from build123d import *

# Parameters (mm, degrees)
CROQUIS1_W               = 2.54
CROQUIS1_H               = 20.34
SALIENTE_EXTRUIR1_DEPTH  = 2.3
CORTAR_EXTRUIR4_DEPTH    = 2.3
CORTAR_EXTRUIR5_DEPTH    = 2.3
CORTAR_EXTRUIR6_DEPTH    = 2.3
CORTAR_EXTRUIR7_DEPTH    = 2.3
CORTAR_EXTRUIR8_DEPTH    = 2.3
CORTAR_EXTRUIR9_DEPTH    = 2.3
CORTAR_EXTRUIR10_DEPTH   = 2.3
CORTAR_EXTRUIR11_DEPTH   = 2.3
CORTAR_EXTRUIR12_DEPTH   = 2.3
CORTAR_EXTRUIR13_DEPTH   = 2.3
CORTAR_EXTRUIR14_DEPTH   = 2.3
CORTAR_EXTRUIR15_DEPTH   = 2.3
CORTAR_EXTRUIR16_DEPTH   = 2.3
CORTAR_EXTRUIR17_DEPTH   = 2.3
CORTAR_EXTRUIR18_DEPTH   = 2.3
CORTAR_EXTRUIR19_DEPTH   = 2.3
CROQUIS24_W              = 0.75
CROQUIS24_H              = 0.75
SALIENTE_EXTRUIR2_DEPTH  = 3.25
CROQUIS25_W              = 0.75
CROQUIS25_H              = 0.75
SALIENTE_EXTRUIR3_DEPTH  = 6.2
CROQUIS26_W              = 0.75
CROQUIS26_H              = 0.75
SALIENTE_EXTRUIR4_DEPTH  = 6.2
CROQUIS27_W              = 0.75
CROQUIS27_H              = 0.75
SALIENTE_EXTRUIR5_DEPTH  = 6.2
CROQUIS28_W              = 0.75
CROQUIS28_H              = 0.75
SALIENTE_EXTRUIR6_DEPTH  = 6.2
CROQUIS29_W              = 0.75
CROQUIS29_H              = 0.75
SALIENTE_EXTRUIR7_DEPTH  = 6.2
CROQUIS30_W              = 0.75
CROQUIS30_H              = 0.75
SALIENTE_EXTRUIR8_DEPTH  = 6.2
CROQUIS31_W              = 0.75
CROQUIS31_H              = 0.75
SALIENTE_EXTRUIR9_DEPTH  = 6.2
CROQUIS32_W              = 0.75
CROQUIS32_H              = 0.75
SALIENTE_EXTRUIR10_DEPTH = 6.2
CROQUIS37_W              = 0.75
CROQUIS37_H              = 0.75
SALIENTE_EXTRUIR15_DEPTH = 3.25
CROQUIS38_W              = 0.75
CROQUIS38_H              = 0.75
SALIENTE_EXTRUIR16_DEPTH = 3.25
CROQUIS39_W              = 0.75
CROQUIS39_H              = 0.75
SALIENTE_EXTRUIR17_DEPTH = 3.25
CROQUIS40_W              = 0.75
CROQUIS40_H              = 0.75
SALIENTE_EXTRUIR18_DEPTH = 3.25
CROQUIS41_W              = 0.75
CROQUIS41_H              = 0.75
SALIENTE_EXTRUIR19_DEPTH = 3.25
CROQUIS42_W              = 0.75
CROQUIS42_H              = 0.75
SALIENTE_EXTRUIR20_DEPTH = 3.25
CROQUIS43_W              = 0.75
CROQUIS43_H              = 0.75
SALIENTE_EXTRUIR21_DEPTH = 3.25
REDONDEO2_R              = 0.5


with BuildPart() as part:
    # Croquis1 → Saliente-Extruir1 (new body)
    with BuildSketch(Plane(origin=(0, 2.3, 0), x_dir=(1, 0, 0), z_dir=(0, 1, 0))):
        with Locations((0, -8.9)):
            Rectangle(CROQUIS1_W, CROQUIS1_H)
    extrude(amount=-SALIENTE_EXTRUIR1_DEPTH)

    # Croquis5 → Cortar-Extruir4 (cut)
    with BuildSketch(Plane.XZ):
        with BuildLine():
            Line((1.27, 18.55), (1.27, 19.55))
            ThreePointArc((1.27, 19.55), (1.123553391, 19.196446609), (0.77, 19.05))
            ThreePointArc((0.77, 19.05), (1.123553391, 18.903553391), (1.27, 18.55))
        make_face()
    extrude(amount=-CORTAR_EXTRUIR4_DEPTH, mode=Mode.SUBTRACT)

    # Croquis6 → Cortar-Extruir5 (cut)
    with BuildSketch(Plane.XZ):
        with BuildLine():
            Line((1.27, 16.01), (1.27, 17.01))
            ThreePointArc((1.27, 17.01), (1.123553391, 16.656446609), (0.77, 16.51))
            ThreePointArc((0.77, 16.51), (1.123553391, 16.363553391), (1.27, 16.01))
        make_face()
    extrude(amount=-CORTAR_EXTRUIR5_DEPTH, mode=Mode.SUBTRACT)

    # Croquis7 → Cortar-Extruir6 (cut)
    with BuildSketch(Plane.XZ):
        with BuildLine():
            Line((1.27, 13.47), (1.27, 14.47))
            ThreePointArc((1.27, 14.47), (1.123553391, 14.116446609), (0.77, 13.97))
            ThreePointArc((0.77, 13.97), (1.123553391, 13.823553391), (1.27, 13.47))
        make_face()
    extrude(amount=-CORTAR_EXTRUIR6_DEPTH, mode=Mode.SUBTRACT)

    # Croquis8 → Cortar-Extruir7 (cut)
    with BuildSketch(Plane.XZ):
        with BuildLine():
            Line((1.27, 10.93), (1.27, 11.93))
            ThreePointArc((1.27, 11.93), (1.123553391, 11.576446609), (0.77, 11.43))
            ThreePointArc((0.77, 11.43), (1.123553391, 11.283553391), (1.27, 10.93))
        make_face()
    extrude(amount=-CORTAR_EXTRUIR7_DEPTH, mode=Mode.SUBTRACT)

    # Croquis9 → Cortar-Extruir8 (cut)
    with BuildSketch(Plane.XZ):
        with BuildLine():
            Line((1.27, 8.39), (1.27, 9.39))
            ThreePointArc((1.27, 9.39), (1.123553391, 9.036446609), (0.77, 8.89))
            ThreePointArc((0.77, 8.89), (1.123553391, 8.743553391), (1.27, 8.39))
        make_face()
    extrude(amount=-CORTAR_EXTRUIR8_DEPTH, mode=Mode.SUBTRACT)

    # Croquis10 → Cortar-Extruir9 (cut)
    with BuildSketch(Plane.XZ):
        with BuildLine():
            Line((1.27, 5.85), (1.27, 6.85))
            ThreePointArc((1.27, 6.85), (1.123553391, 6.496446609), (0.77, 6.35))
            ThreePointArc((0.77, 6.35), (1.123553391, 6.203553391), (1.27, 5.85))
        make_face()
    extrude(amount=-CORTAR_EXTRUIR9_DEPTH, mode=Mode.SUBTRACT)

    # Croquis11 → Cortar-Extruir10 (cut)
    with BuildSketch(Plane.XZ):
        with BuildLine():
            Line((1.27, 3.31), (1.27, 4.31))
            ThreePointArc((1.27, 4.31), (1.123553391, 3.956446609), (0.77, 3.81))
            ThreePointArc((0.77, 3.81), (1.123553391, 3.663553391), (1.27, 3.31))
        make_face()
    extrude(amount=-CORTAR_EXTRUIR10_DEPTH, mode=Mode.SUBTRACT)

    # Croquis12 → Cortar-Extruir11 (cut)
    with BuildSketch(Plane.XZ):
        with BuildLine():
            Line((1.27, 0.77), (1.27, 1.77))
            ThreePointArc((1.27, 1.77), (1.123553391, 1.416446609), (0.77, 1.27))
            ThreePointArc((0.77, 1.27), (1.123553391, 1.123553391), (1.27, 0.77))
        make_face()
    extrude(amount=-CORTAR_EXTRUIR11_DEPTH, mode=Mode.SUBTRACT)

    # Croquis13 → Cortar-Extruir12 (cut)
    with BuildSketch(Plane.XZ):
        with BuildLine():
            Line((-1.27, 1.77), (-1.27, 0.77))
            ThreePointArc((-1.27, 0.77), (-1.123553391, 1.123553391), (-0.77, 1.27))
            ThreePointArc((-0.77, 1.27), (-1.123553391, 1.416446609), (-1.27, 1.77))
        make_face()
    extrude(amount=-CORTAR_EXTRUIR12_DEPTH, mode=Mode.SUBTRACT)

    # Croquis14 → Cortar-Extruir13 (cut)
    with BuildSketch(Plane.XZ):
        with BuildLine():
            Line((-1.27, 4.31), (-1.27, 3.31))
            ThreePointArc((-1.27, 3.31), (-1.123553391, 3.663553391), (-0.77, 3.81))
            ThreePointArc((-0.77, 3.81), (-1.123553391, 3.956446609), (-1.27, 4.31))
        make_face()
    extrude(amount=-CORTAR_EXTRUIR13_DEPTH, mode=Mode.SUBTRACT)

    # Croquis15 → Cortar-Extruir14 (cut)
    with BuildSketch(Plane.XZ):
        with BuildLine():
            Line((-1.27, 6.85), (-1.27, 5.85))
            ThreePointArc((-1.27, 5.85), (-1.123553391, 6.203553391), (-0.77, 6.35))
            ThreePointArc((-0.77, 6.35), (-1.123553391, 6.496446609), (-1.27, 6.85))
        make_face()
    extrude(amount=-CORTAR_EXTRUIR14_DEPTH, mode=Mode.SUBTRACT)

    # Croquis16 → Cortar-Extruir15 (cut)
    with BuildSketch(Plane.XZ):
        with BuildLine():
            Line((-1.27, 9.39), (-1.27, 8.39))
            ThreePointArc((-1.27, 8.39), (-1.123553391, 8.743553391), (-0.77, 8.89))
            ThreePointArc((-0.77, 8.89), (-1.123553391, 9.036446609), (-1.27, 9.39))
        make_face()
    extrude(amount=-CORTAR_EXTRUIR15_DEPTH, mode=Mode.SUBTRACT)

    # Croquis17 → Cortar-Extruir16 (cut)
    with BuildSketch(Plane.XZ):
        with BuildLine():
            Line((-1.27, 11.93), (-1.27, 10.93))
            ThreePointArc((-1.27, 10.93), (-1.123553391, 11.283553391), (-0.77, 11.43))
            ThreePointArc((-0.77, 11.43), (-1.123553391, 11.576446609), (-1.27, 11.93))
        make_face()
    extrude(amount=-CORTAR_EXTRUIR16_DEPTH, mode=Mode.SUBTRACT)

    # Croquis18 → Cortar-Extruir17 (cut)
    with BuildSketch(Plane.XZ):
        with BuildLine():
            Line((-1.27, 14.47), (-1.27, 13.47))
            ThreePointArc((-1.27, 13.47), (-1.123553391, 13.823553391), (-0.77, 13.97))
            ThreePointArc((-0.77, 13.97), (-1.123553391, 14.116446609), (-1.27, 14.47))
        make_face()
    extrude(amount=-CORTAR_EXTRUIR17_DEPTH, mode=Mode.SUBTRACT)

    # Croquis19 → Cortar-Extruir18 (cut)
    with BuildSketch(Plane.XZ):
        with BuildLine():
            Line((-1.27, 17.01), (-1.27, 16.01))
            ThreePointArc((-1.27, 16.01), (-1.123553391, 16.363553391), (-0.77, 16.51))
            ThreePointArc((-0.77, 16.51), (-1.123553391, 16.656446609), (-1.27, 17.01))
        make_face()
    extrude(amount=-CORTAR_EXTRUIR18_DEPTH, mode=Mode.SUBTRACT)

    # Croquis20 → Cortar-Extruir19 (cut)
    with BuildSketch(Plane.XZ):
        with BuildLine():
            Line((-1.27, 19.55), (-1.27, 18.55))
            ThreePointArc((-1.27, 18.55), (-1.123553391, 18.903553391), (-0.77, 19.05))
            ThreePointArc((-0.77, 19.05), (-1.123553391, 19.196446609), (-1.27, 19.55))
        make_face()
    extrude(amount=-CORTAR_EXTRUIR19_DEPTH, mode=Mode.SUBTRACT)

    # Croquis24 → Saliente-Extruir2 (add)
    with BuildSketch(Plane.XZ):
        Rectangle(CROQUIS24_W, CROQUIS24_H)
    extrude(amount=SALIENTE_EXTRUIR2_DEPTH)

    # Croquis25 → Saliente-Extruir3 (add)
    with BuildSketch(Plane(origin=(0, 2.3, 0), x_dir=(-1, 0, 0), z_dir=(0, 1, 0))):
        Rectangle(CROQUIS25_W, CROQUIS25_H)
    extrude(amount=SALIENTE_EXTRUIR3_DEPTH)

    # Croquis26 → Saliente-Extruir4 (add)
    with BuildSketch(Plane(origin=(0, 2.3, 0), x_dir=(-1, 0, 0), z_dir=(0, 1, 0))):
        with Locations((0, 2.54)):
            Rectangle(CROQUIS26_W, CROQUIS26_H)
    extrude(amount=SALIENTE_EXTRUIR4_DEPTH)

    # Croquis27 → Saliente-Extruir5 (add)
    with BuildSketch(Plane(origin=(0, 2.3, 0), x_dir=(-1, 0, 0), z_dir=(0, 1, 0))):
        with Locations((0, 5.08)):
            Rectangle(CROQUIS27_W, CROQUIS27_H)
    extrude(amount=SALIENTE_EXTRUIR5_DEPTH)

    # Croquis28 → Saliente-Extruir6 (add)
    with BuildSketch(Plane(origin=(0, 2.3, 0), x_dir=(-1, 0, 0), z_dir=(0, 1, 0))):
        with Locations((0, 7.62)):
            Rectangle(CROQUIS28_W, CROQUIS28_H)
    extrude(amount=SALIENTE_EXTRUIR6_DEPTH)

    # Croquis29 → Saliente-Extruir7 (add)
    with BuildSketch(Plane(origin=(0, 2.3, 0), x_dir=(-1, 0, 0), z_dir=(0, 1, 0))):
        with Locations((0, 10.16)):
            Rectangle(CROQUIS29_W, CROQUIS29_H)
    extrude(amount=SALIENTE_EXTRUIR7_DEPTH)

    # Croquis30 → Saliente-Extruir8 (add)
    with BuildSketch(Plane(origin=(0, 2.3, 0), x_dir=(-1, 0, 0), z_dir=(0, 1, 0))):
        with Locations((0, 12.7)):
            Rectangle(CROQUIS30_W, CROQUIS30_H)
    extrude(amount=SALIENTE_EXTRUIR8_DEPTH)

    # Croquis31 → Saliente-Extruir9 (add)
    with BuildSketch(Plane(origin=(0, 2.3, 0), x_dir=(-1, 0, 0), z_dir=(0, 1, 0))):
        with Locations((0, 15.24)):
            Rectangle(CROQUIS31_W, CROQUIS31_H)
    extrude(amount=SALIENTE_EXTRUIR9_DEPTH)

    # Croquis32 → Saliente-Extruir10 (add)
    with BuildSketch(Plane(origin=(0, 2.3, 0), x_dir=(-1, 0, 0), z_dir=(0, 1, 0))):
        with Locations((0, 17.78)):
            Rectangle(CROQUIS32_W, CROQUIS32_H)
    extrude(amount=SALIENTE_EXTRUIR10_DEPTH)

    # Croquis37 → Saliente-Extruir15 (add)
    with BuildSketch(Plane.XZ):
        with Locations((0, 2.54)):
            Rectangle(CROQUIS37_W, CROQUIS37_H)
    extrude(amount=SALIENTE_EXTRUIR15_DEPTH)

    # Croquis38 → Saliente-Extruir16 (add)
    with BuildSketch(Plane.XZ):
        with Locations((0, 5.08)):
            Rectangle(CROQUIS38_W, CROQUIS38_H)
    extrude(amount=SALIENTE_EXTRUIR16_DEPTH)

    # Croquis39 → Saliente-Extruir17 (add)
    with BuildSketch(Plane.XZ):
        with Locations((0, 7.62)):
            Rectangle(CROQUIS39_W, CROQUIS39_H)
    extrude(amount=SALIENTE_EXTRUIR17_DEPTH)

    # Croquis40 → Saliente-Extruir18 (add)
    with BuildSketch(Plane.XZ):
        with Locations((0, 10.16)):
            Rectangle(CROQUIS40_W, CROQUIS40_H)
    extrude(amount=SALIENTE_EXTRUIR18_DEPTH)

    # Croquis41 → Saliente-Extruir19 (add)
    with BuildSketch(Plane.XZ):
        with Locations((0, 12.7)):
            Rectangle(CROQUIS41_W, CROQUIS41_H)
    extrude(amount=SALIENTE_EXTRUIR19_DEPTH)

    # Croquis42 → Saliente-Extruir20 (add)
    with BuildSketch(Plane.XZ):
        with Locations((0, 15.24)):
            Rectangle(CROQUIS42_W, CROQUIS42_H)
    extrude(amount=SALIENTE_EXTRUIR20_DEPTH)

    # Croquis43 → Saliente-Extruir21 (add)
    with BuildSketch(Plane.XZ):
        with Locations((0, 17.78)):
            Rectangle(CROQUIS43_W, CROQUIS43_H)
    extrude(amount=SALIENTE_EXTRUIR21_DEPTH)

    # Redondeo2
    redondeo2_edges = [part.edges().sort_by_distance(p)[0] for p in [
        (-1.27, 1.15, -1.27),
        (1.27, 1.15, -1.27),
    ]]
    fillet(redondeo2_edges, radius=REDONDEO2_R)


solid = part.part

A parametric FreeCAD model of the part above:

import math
import FreeCAD as App
import Part
import Sketcher
from FreeCAD import Vector
Q = App.Units.Quantity


def edges_at(feature, points):
    """Names of the edges that pass closest to the given points."""
    edges = feature.Shape.Edges
    near = lambda p: min(range(len(edges)), key=lambda i: edges[i].distToShape(Part.Vertex(*p))[0])
    return sorted({f"Edge{near(p) + 1}" for p in points})


def add_polygon(sketch, points):
    """Adds a closed chain of lines whose ends are joined by coincident constraints."""
    first, n = sketch.GeometryCount, len(points)
    for a, b in zip(points, points[1:] + points[:1]):
        sketch.addGeometry(Part.LineSegment(App.Vector(*a, 0), App.Vector(*b, 0)), False)
    for i in range(n):
        sketch.addConstraint(Sketcher.Constraint("Coincident", first + i, 2, first + (i + 1) % n, 1))

doc = App.newDocument("Part")
body = doc.addObject("PartDesign::Body", "Body")

# Sketch on XZ plane
sketch1 = body.newObject("Sketcher::SketchObject", "Sketch")
sketch1.AttachmentSupport = (doc.getObject("XZ_Plane"), [""])
sketch1.MapMode = "FlatFace"
sketch1.AttachmentOffset = App.Placement(Vector(0, 0, -2.3), App.Rotation())
add_polygon(sketch1, [(-1.27, -1.27), (-1.27, 19.07), (1.27, 19.07), (1.27, -1.27)])  # lines 0-3
sketch1.addConstraint([
    Sketcher.Constraint("Vertical", 0),
    Sketcher.Constraint("Horizontal", 1),
    Sketcher.Constraint("Vertical", 2),
    Sketcher.Constraint("Horizontal", 3),
    Sketcher.Constraint("DistanceX", 1, 1, 1, 2, Q("2.54 mm")),
    Sketcher.Constraint("DistanceY", 0, 1, 0, 2, Q("20.34 mm")),
    Sketcher.Constraint("DistanceX", 0, 2, -1, 1, Q("1.27 mm")),
    Sketcher.Constraint("DistanceY", -1, 1, 0, 2, Q("19.07 mm")),
])
pad1 = body.newObject("PartDesign::Pad", "Pad")
pad1.Profile = sketch1
pad1.Length = 2.3

# Sketch on XZ plane
sketch2 = body.newObject("Sketcher::SketchObject", "Sketch001")
sketch2.AttachmentSupport = (doc.getObject("XZ_Plane"), [""])
sketch2.MapMode = "FlatFace"
sketch2.addGeometry([
    Part.LineSegment(Vector(1.27, 18.55, 0), Vector(1.27, 19.55, 0)),
    Part.ArcOfCircle(Part.Circle(Vector(0.77, 19.55, 0), Vector(0, 0, 1), 0.5), math.radians(-90), math.radians(0)),
    Part.ArcOfCircle(Part.Circle(Vector(0.77, 18.55, 0), Vector(0, 0, 1), 0.5), math.radians(0), math.radians(90)),
], False)
sketch2.addConstraint([
    Sketcher.Constraint("Tangent", 0, 2, 1, 2),
    Sketcher.Constraint("Tangent", 1, 1, 2, 2),
    Sketcher.Constraint("Tangent", 2, 1, 0, 1),
    Sketcher.Constraint("Vertical", 0),
    Sketcher.Constraint("Equal", 1, 2),
    Sketcher.Constraint("Radius", 1, Q("0.5 mm")),
    Sketcher.Constraint("DistanceX", -1, 1, 1, 3, Q("0.77 mm")),
    Sketcher.Constraint("DistanceY", -1, 1, 1, 3, Q("19.55 mm")),
])
pocket1 = body.newObject("PartDesign::Pocket", "Pocket")
pocket1.Profile = sketch2
pocket1.Length = 2.3

# Sketch on XZ plane
sketch3 = body.newObject("Sketcher::SketchObject", "Sketch002")
sketch3.AttachmentSupport = (doc.getObject("XZ_Plane"), [""])
sketch3.MapMode = "FlatFace"
sketch3.addGeometry([
    Part.LineSegment(Vector(1.27, 16.01, 0), Vector(1.27, 17.01, 0)),
    Part.ArcOfCircle(Part.Circle(Vector(0.77, 17.01, 0), Vector(0, 0, 1), 0.5), math.radians(-90), math.radians(0)),
    Part.ArcOfCircle(Part.Circle(Vector(0.77, 16.01, 0), Vector(0, 0, 1), 0.5), math.radians(0), math.radians(90)),
], False)
sketch3.addConstraint([
    Sketcher.Constraint("Tangent", 0, 2, 1, 2),
    Sketcher.Constraint("Tangent", 1, 1, 2, 2),
    Sketcher.Constraint("Tangent", 2, 1, 0, 1),
    Sketcher.Constraint("Vertical", 0),
    Sketcher.Constraint("Equal", 1, 2),
    Sketcher.Constraint("Radius", 1, Q("0.5 mm")),
    Sketcher.Constraint("DistanceX", -1, 1, 1, 3, Q("0.77 mm")),
    Sketcher.Constraint("DistanceY", -1, 1, 1, 3, Q("17.01 mm")),
])
pocket2 = body.newObject("PartDesign::Pocket", "Pocket001")
pocket2.Profile = sketch3
pocket2.Length = 2.3

# Sketch on XZ plane
sketch4 = body.newObject("Sketcher::SketchObject", "Sketch003")
sketch4.AttachmentSupport = (doc.getObject("XZ_Plane"), [""])
sketch4.MapMode = "FlatFace"
sketch4.addGeometry([
    Part.LineSegment(Vector(1.27, 13.47, 0), Vector(1.27, 14.47, 0)),
    Part.ArcOfCircle(Part.Circle(Vector(0.77, 14.47, 0), Vector(0, 0, 1), 0.5), math.radians(-90), math.radians(0)),
    Part.ArcOfCircle(Part.Circle(Vector(0.77, 13.47, 0), Vector(0, 0, 1), 0.5), math.radians(0), math.radians(90)),
], False)
sketch4.addConstraint([
    Sketcher.Constraint("Tangent", 0, 2, 1, 2),
    Sketcher.Constraint("Tangent", 1, 1, 2, 2),
    Sketcher.Constraint("Tangent", 2, 1, 0, 1),
    Sketcher.Constraint("Vertical", 0),
    Sketcher.Constraint("Equal", 1, 2),
    Sketcher.Constraint("Radius", 1, Q("0.5 mm")),
    Sketcher.Constraint("DistanceX", -1, 1, 1, 3, Q("0.77 mm")),
    Sketcher.Constraint("DistanceY", -1, 1, 1, 3, Q("14.47 mm")),
])
pocket3 = body.newObject("PartDesign::Pocket", "Pocket002")
pocket3.Profile = sketch4
pocket3.Length = 2.3

# Sketch on XZ plane
sketch5 = body.newObject("Sketcher::SketchObject", "Sketch004")
sketch5.AttachmentSupport = (doc.getObject("XZ_Plane"), [""])
sketch5.MapMode = "FlatFace"
sketch5.addGeometry([
    Part.LineSegment(Vector(1.27, 10.93, 0), Vector(1.27, 11.93, 0)),
    Part.ArcOfCircle(Part.Circle(Vector(0.77, 11.93, 0), Vector(0, 0, 1), 0.5), math.radians(-90), math.radians(0)),
    Part.ArcOfCircle(Part.Circle(Vector(0.77, 10.93, 0), Vector(0, 0, 1), 0.5), math.radians(0), math.radians(90)),
], False)
sketch5.addConstraint([
    Sketcher.Constraint("Tangent", 0, 2, 1, 2),
    Sketcher.Constraint("Tangent", 1, 1, 2, 2),
    Sketcher.Constraint("Tangent", 2, 1, 0, 1),
    Sketcher.Constraint("Vertical", 0),
    Sketcher.Constraint("Equal", 1, 2),
    Sketcher.Constraint("Radius", 1, Q("0.5 mm")),
    Sketcher.Constraint("DistanceX", -1, 1, 1, 3, Q("0.77 mm")),
    Sketcher.Constraint("DistanceY", -1, 1, 1, 3, Q("11.93 mm")),
])
pocket4 = body.newObject("PartDesign::Pocket", "Pocket003")
pocket4.Profile = sketch5
pocket4.Length = 2.3

# Sketch on XZ plane
sketch6 = body.newObject("Sketcher::SketchObject", "Sketch005")
sketch6.AttachmentSupport = (doc.getObject("XZ_Plane"), [""])
sketch6.MapMode = "FlatFace"
sketch6.addGeometry([
    Part.LineSegment(Vector(1.27, 8.39, 0), Vector(1.27, 9.39, 0)),
    Part.ArcOfCircle(Part.Circle(Vector(0.77, 9.39, 0), Vector(0, 0, 1), 0.5), math.radians(-90), math.radians(0)),
    Part.ArcOfCircle(Part.Circle(Vector(0.77, 8.39, 0), Vector(0, 0, 1), 0.5), math.radians(0), math.radians(90)),
], False)
sketch6.addConstraint([
    Sketcher.Constraint("Tangent", 0, 2, 1, 2),
    Sketcher.Constraint("Tangent", 1, 1, 2, 2),
    Sketcher.Constraint("Tangent", 2, 1, 0, 1),
    Sketcher.Constraint("Vertical", 0),
    Sketcher.Constraint("Equal", 1, 2),
    Sketcher.Constraint("Radius", 1, Q("0.5 mm")),
    Sketcher.Constraint("DistanceX", -1, 1, 1, 3, Q("0.77 mm")),
    Sketcher.Constraint("DistanceY", -1, 1, 1, 3, Q("9.39 mm")),
])
pocket5 = body.newObject("PartDesign::Pocket", "Pocket004")
pocket5.Profile = sketch6
pocket5.Length = 2.3

# Sketch on XZ plane
sketch7 = body.newObject("Sketcher::SketchObject", "Sketch006")
sketch7.AttachmentSupport = (doc.getObject("XZ_Plane"), [""])
sketch7.MapMode = "FlatFace"
sketch7.addGeometry([
    Part.LineSegment(Vector(1.27, 5.85, 0), Vector(1.27, 6.85, 0)),
    Part.ArcOfCircle(Part.Circle(Vector(0.77, 6.85, 0), Vector(0, 0, 1), 0.5), math.radians(-90), math.radians(0)),
    Part.ArcOfCircle(Part.Circle(Vector(0.77, 5.85, 0), Vector(0, 0, 1), 0.5), math.radians(0), math.radians(90)),
], False)
sketch7.addConstraint([
    Sketcher.Constraint("Tangent", 0, 2, 1, 2),
    Sketcher.Constraint("Tangent", 1, 1, 2, 2),
    Sketcher.Constraint("Tangent", 2, 1, 0, 1),
    Sketcher.Constraint("Vertical", 0),
    Sketcher.Constraint("Equal", 1, 2),
    Sketcher.Constraint("Radius", 1, Q("0.5 mm")),
    Sketcher.Constraint("DistanceX", -1, 1, 1, 3, Q("0.77 mm")),
    Sketcher.Constraint("DistanceY", -1, 1, 1, 3, Q("6.85 mm")),
])
pocket6 = body.newObject("PartDesign::Pocket", "Pocket005")
pocket6.Profile = sketch7
pocket6.Length = 2.3

# Sketch on XZ plane
sketch8 = body.newObject("Sketcher::SketchObject", "Sketch007")
sketch8.AttachmentSupport = (doc.getObject("XZ_Plane"), [""])
sketch8.MapMode = "FlatFace"
sketch8.addGeometry([
    Part.LineSegment(Vector(1.27, 3.31, 0), Vector(1.27, 4.31, 0)),
    Part.ArcOfCircle(Part.Circle(Vector(0.77, 4.31, 0), Vector(0, 0, 1), 0.5), math.radians(-90), math.radians(0)),
    Part.ArcOfCircle(Part.Circle(Vector(0.77, 3.31, 0), Vector(0, 0, 1), 0.5), math.radians(0), math.radians(90)),
], False)
sketch8.addConstraint([
    Sketcher.Constraint("Tangent", 0, 2, 1, 2),
    Sketcher.Constraint("Tangent", 1, 1, 2, 2),
    Sketcher.Constraint("Tangent", 2, 1, 0, 1),
    Sketcher.Constraint("Vertical", 0),
    Sketcher.Constraint("Equal", 1, 2),
    Sketcher.Constraint("Radius", 1, Q("0.5 mm")),
    Sketcher.Constraint("DistanceX", -1, 1, 1, 3, Q("0.77 mm")),
    Sketcher.Constraint("DistanceY", -1, 1, 1, 3, Q("4.31 mm")),
])
pocket7 = body.newObject("PartDesign::Pocket", "Pocket006")
pocket7.Profile = sketch8
pocket7.Length = 2.3

# Sketch on XZ plane
sketch9 = body.newObject("Sketcher::SketchObject", "Sketch008")
sketch9.AttachmentSupport = (doc.getObject("XZ_Plane"), [""])
sketch9.MapMode = "FlatFace"
sketch9.addGeometry([
    Part.LineSegment(Vector(1.27, 0.77, 0), Vector(1.27, 1.77, 0)),
    Part.ArcOfCircle(Part.Circle(Vector(0.77, 1.77, 0), Vector(0, 0, 1), 0.5), math.radians(-90), math.radians(0)),
    Part.ArcOfCircle(Part.Circle(Vector(0.77, 0.77, 0), Vector(0, 0, 1), 0.5), math.radians(0), math.radians(90)),
], False)
sketch9.addConstraint([
    Sketcher.Constraint("Tangent", 0, 2, 1, 2),
    Sketcher.Constraint("Tangent", 1, 1, 2, 2),
    Sketcher.Constraint("Tangent", 2, 1, 0, 1),
    Sketcher.Constraint("Vertical", 0),
    Sketcher.Constraint("Equal", 1, 2),
    Sketcher.Constraint("Radius", 1, Q("0.5 mm")),
    Sketcher.Constraint("DistanceX", -1, 1, 1, 3, Q("0.77 mm")),
    Sketcher.Constraint("DistanceY", -1, 1, 1, 3, Q("1.77 mm")),
])
pocket8 = body.newObject("PartDesign::Pocket", "Pocket007")
pocket8.Profile = sketch9
pocket8.Length = 2.3

# Sketch on XZ plane
sketch10 = body.newObject("Sketcher::SketchObject", "Sketch009")
sketch10.AttachmentSupport = (doc.getObject("XZ_Plane"), [""])
sketch10.MapMode = "FlatFace"
sketch10.addGeometry([
    Part.LineSegment(Vector(-1.27, 1.77, 0), Vector(-1.27, 0.77, 0)),
    Part.ArcOfCircle(Part.Circle(Vector(-0.77, 0.77, 0), Vector(0, 0, 1), 0.5), math.radians(90), math.radians(180)),
    Part.ArcOfCircle(Part.Circle(Vector(-0.77, 1.77, 0), Vector(0, 0, 1), 0.5), math.radians(180), math.radians(270)),
], False)
sketch10.addConstraint([
    Sketcher.Constraint("Tangent", 0, 2, 1, 2),
    Sketcher.Constraint("Tangent", 1, 1, 2, 2),
    Sketcher.Constraint("Tangent", 2, 1, 0, 1),
    Sketcher.Constraint("Vertical", 0),
    Sketcher.Constraint("Equal", 1, 2),
    Sketcher.Constraint("Radius", 1, Q("0.5 mm")),
    Sketcher.Constraint("DistanceX", 1, 3, -1, 1, Q("0.77 mm")),
    Sketcher.Constraint("DistanceY", -1, 1, 1, 3, Q("0.77 mm")),
])
pocket9 = body.newObject("PartDesign::Pocket", "Pocket008")
pocket9.Profile = sketch10
pocket9.Length = 2.3

# Sketch on XZ plane
sketch11 = body.newObject("Sketcher::SketchObject", "Sketch010")
sketch11.AttachmentSupport = (doc.getObject("XZ_Plane"), [""])
sketch11.MapMode = "FlatFace"
sketch11.addGeometry([
    Part.LineSegment(Vector(-1.27, 4.31, 0), Vector(-1.27, 3.31, 0)),
    Part.ArcOfCircle(Part.Circle(Vector(-0.77, 3.31, 0), Vector(0, 0, 1), 0.5), math.radians(90), math.radians(180)),
    Part.ArcOfCircle(Part.Circle(Vector(-0.77, 4.31, 0), Vector(0, 0, 1), 0.5), math.radians(180), math.radians(270)),
], False)
sketch11.addConstraint([
    Sketcher.Constraint("Tangent", 0, 2, 1, 2),
    Sketcher.Constraint("Tangent", 1, 1, 2, 2),
    Sketcher.Constraint("Tangent", 2, 1, 0, 1),
    Sketcher.Constraint("Vertical", 0),
    Sketcher.Constraint("Equal", 1, 2),
    Sketcher.Constraint("Radius", 1, Q("0.5 mm")),
    Sketcher.Constraint("DistanceX", 1, 3, -1, 1, Q("0.77 mm")),
    Sketcher.Constraint("DistanceY", -1, 1, 1, 3, Q("3.31 mm")),
])
pocket10 = body.newObject("PartDesign::Pocket", "Pocket009")
pocket10.Profile = sketch11
pocket10.Length = 2.3

# Sketch on XZ plane
sketch12 = body.newObject("Sketcher::SketchObject", "Sketch011")
sketch12.AttachmentSupport = (doc.getObject("XZ_Plane"), [""])
sketch12.MapMode = "FlatFace"
sketch12.addGeometry([
    Part.LineSegment(Vector(-1.27, 6.85, 0), Vector(-1.27, 5.85, 0)),
    Part.ArcOfCircle(Part.Circle(Vector(-0.77, 5.85, 0), Vector(0, 0, 1), 0.5), math.radians(90), math.radians(180)),
    Part.ArcOfCircle(Part.Circle(Vector(-0.77, 6.85, 0), Vector(0, 0, 1), 0.5), math.radians(180), math.radians(270)),
], False)
sketch12.addConstraint([
    Sketcher.Constraint("Tangent", 0, 2, 1, 2),
    Sketcher.Constraint("Tangent", 1, 1, 2, 2),
    Sketcher.Constraint("Tangent", 2, 1, 0, 1),
    Sketcher.Constraint("Vertical", 0),
    Sketcher.Constraint("Equal", 1, 2),
    Sketcher.Constraint("Radius", 1, Q("0.5 mm")),
    Sketcher.Constraint("DistanceX", 1, 3, -1, 1, Q("0.77 mm")),
    Sketcher.Constraint("DistanceY", -1, 1, 1, 3, Q("5.85 mm")),
])
pocket11 = body.newObject("PartDesign::Pocket", "Pocket010")
pocket11.Profile = sketch12
pocket11.Length = 2.3

# Sketch on XZ plane
sketch13 = body.newObject("Sketcher::SketchObject", "Sketch012")
sketch13.AttachmentSupport = (doc.getObject("XZ_Plane"), [""])
sketch13.MapMode = "FlatFace"
sketch13.addGeometry([
    Part.LineSegment(Vector(-1.27, 9.39, 0), Vector(-1.27, 8.39, 0)),
    Part.ArcOfCircle(Part.Circle(Vector(-0.77, 8.39, 0), Vector(0, 0, 1), 0.5), math.radians(90), math.radians(180)),
    Part.ArcOfCircle(Part.Circle(Vector(-0.77, 9.39, 0), Vector(0, 0, 1), 0.5), math.radians(180), math.radians(270)),
], False)
sketch13.addConstraint([
    Sketcher.Constraint("Tangent", 0, 2, 1, 2),
    Sketcher.Constraint("Tangent", 1, 1, 2, 2),
    Sketcher.Constraint("Tangent", 2, 1, 0, 1),
    Sketcher.Constraint("Vertical", 0),
    Sketcher.Constraint("Equal", 1, 2),
    Sketcher.Constraint("Radius", 1, Q("0.5 mm")),
    Sketcher.Constraint("DistanceX", 1, 3, -1, 1, Q("0.77 mm")),
    Sketcher.Constraint("DistanceY", -1, 1, 1, 3, Q("8.39 mm")),
])
pocket12 = body.newObject("PartDesign::Pocket", "Pocket011")
pocket12.Profile = sketch13
pocket12.Length = 2.3

# Sketch on XZ plane
sketch14 = body.newObject("Sketcher::SketchObject", "Sketch013")
sketch14.AttachmentSupport = (doc.getObject("XZ_Plane"), [""])
sketch14.MapMode = "FlatFace"
sketch14.addGeometry([
    Part.LineSegment(Vector(-1.27, 11.93, 0), Vector(-1.27, 10.93, 0)),
    Part.ArcOfCircle(Part.Circle(Vector(-0.77, 10.93, 0), Vector(0, 0, 1), 0.5), math.radians(90), math.radians(180)),
    Part.ArcOfCircle(Part.Circle(Vector(-0.77, 11.93, 0), Vector(0, 0, 1), 0.5), math.radians(180), math.radians(270)),
], False)
sketch14.addConstraint([
    Sketcher.Constraint("Tangent", 0, 2, 1, 2),
    Sketcher.Constraint("Tangent", 1, 1, 2, 2),
    Sketcher.Constraint("Tangent", 2, 1, 0, 1),
    Sketcher.Constraint("Vertical", 0),
    Sketcher.Constraint("Equal", 1, 2),
    Sketcher.Constraint("Radius", 1, Q("0.5 mm")),
    Sketcher.Constraint("DistanceX", 1, 3, -1, 1, Q("0.77 mm")),
    Sketcher.Constraint("DistanceY", -1, 1, 1, 3, Q("10.93 mm")),
])
pocket13 = body.newObject("PartDesign::Pocket", "Pocket012")
pocket13.Profile = sketch14
pocket13.Length = 2.3

# Sketch on XZ plane
sketch15 = body.newObject("Sketcher::SketchObject", "Sketch014")
sketch15.AttachmentSupport = (doc.getObject("XZ_Plane"), [""])
sketch15.MapMode = "FlatFace"
sketch15.addGeometry([
    Part.LineSegment(Vector(-1.27, 14.47, 0), Vector(-1.27, 13.47, 0)),
    Part.ArcOfCircle(Part.Circle(Vector(-0.77, 13.47, 0), Vector(0, 0, 1), 0.5), math.radians(90), math.radians(180)),
    Part.ArcOfCircle(Part.Circle(Vector(-0.77, 14.47, 0), Vector(0, 0, 1), 0.5), math.radians(180), math.radians(270)),
], False)
sketch15.addConstraint([
    Sketcher.Constraint("Tangent", 0, 2, 1, 2),
    Sketcher.Constraint("Tangent", 1, 1, 2, 2),
    Sketcher.Constraint("Tangent", 2, 1, 0, 1),
    Sketcher.Constraint("Vertical", 0),
    Sketcher.Constraint("Equal", 1, 2),
    Sketcher.Constraint("Radius", 1, Q("0.5 mm")),
    Sketcher.Constraint("DistanceX", 1, 3, -1, 1, Q("0.77 mm")),
    Sketcher.Constraint("DistanceY", -1, 1, 1, 3, Q("13.47 mm")),
])
pocket14 = body.newObject("PartDesign::Pocket", "Pocket013")
pocket14.Profile = sketch15
pocket14.Length = 2.3

# Sketch on XZ plane
sketch16 = body.newObject("Sketcher::SketchObject", "Sketch015")
sketch16.AttachmentSupport = (doc.getObject("XZ_Plane"), [""])
sketch16.MapMode = "FlatFace"
sketch16.addGeometry([
    Part.LineSegment(Vector(-1.27, 17.01, 0), Vector(-1.27, 16.01, 0)),
    Part.ArcOfCircle(Part.Circle(Vector(-0.77, 16.01, 0), Vector(0, 0, 1), 0.5), math.radians(90), math.radians(180)),
    Part.ArcOfCircle(Part.Circle(Vector(-0.77, 17.01, 0), Vector(0, 0, 1), 0.5), math.radians(180), math.radians(270)),
], False)
sketch16.addConstraint([
    Sketcher.Constraint("Tangent", 0, 2, 1, 2),
    Sketcher.Constraint("Tangent", 1, 1, 2, 2),
    Sketcher.Constraint("Tangent", 2, 1, 0, 1),
    Sketcher.Constraint("Vertical", 0),
    Sketcher.Constraint("Equal", 1, 2),
    Sketcher.Constraint("Radius", 1, Q("0.5 mm")),
    Sketcher.Constraint("DistanceX", 1, 3, -1, 1, Q("0.77 mm")),
    Sketcher.Constraint("DistanceY", -1, 1, 1, 3, Q("16.01 mm")),
])
pocket15 = body.newObject("PartDesign::Pocket", "Pocket014")
pocket15.Profile = sketch16
pocket15.Length = 2.3

# Sketch on XZ plane
sketch17 = body.newObject("Sketcher::SketchObject", "Sketch016")
sketch17.AttachmentSupport = (doc.getObject("XZ_Plane"), [""])
sketch17.MapMode = "FlatFace"
sketch17.addGeometry([
    Part.LineSegment(Vector(-1.27, 19.55, 0), Vector(-1.27, 18.55, 0)),
    Part.ArcOfCircle(Part.Circle(Vector(-0.77, 18.55, 0), Vector(0, 0, 1), 0.5), math.radians(90), math.radians(180)),
    Part.ArcOfCircle(Part.Circle(Vector(-0.77, 19.55, 0), Vector(0, 0, 1), 0.5), math.radians(180), math.radians(270)),
], False)
sketch17.addConstraint([
    Sketcher.Constraint("Tangent", 0, 2, 1, 2),
    Sketcher.Constraint("Tangent", 1, 1, 2, 2),
    Sketcher.Constraint("Tangent", 2, 1, 0, 1),
    Sketcher.Constraint("Vertical", 0),
    Sketcher.Constraint("Equal", 1, 2),
    Sketcher.Constraint("Radius", 1, Q("0.5 mm")),
    Sketcher.Constraint("DistanceX", 1, 3, -1, 1, Q("0.77 mm")),
    Sketcher.Constraint("DistanceY", -1, 1, 1, 3, Q("18.55 mm")),
])
pocket16 = body.newObject("PartDesign::Pocket", "Pocket015")
pocket16.Profile = sketch17
pocket16.Length = 2.3

# Sketch on XZ plane
sketch18 = body.newObject("Sketcher::SketchObject", "Sketch017")
sketch18.AttachmentSupport = (doc.getObject("XZ_Plane"), [""])
sketch18.MapMode = "FlatFace"
add_polygon(sketch18, [(-0.375, 0.375), (-0.375, -0.375), (0.375, -0.375), (0.375, 0.375)])  # lines 0-3
sketch18.addConstraint([
    Sketcher.Constraint("Vertical", 0),
    Sketcher.Constraint("Horizontal", 1),
    Sketcher.Constraint("Vertical", 2),
    Sketcher.Constraint("Horizontal", 3),
    Sketcher.Constraint("Symmetric", 0, 2, 2, 2, -1, 1),
    Sketcher.Constraint("Equal", 3, 0),
    Sketcher.Constraint("DistanceX", 1, 1, 1, 2, Q("0.75 mm")),
])
pad2 = body.newObject("PartDesign::Pad", "Pad001")
pad2.Profile = sketch18
pad2.Length = 3.25

# Sketch on XZ plane
sketch19 = body.newObject("Sketcher::SketchObject", "Sketch018")
sketch19.AttachmentSupport = (doc.getObject("XZ_Plane"), [""])
sketch19.MapMode = "FlatFace"
sketch19.AttachmentOffset = App.Placement(Vector(0, 0, -2.3), App.Rotation())
add_polygon(sketch19, [(0.375, 0.375), (0.375, -0.375), (-0.375, -0.375), (-0.375, 0.375)])  # lines 0-3
sketch19.addConstraint([
    Sketcher.Constraint("Vertical", 0),
    Sketcher.Constraint("Horizontal", 1),
    Sketcher.Constraint("Vertical", 2),
    Sketcher.Constraint("Horizontal", 3),
    Sketcher.Constraint("Symmetric", 0, 2, 2, 2, -1, 1),
    Sketcher.Constraint("Equal", 3, 0),
    Sketcher.Constraint("DistanceX", 1, 2, 1, 1, Q("0.75 mm")),
])
pad3 = body.newObject("PartDesign::Pad", "Pad002")
pad3.Profile = sketch19
pad3.Length = 6.2
pad3.Reversed = True

# Sketch on XZ plane
sketch20 = body.newObject("Sketcher::SketchObject", "Sketch019")
sketch20.AttachmentSupport = (doc.getObject("XZ_Plane"), [""])
sketch20.MapMode = "FlatFace"
sketch20.AttachmentOffset = App.Placement(Vector(0, 0, -2.3), App.Rotation())
add_polygon(sketch20, [(0.375, 2.915), (0.375, 2.165), (-0.375, 2.165), (-0.375, 2.915)])  # lines 0-3
sketch20.addConstraint([
    Sketcher.Constraint("Vertical", 0),
    Sketcher.Constraint("Horizontal", 1),
    Sketcher.Constraint("Vertical", 2),
    Sketcher.Constraint("Horizontal", 3),
    Sketcher.Constraint("Equal", 3, 0),
    Sketcher.Constraint("DistanceX", 1, 2, 1, 1, Q("0.75 mm")),
    Sketcher.Constraint("DistanceX", -1, 1, 0, 2, Q("0.375 mm")),
    Sketcher.Constraint("DistanceY", -1, 1, 0, 2, Q("2.165 mm")),
])
pad4 = body.newObject("PartDesign::Pad", "Pad003")
pad4.Profile = sketch20
pad4.Length = 6.2
pad4.Reversed = True

# Sketch on XZ plane
sketch21 = body.newObject("Sketcher::SketchObject", "Sketch020")
sketch21.AttachmentSupport = (doc.getObject("XZ_Plane"), [""])
sketch21.MapMode = "FlatFace"
sketch21.AttachmentOffset = App.Placement(Vector(0, 0, -2.3), App.Rotation())
add_polygon(sketch21, [(0.375, 5.455), (0.375, 4.705), (-0.375, 4.705), (-0.375, 5.455)])  # lines 0-3
sketch21.addConstraint([
    Sketcher.Constraint("Vertical", 0),
    Sketcher.Constraint("Horizontal", 1),
    Sketcher.Constraint("Vertical", 2),
    Sketcher.Constraint("Horizontal", 3),
    Sketcher.Constraint("Equal", 3, 0),
    Sketcher.Constraint("DistanceX", 1, 2, 1, 1, Q("0.75 mm")),
    Sketcher.Constraint("DistanceX", -1, 1, 0, 2, Q("0.375 mm")),
    Sketcher.Constraint("DistanceY", -1, 1, 0, 2, Q("4.705 mm")),
])
pad5 = body.newObject("PartDesign::Pad", "Pad004")
pad5.Profile = sketch21
pad5.Length = 6.2
pad5.Reversed = True

# Sketch on XZ plane
sketch22 = body.newObject("Sketcher::SketchObject", "Sketch021")
sketch22.AttachmentSupport = (doc.getObject("XZ_Plane"), [""])
sketch22.MapMode = "FlatFace"
sketch22.AttachmentOffset = App.Placement(Vector(0, 0, -2.3), App.Rotation())
add_polygon(sketch22, [(0.375, 7.995), (0.375, 7.245), (-0.375, 7.245), (-0.375, 7.995)])  # lines 0-3
sketch22.addConstraint([
    Sketcher.Constraint("Vertical", 0),
    Sketcher.Constraint("Horizontal", 1),
    Sketcher.Constraint("Vertical", 2),
    Sketcher.Constraint("Horizontal", 3),
    Sketcher.Constraint("Equal", 3, 0),
    Sketcher.Constraint("DistanceX", 1, 2, 1, 1, Q("0.75 mm")),
    Sketcher.Constraint("DistanceX", -1, 1, 0, 2, Q("0.375 mm")),
    Sketcher.Constraint("DistanceY", -1, 1, 0, 2, Q("7.245 mm")),
])
pad6 = body.newObject("PartDesign::Pad", "Pad005")
pad6.Profile = sketch22
pad6.Length = 6.2
pad6.Reversed = True

# Sketch on XZ plane
sketch23 = body.newObject("Sketcher::SketchObject", "Sketch022")
sketch23.AttachmentSupport = (doc.getObject("XZ_Plane"), [""])
sketch23.MapMode = "FlatFace"
sketch23.AttachmentOffset = App.Placement(Vector(0, 0, -2.3), App.Rotation())
add_polygon(sketch23, [(0.375, 10.535), (0.375, 9.785), (-0.375, 9.785), (-0.375, 10.535)])  # lines 0-3
sketch23.addConstraint([
    Sketcher.Constraint("Vertical", 0),
    Sketcher.Constraint("Horizontal", 1),
    Sketcher.Constraint("Vertical", 2),
    Sketcher.Constraint("Horizontal", 3),
    Sketcher.Constraint("Equal", 3, 0),
    Sketcher.Constraint("DistanceX", 1, 2, 1, 1, Q("0.75 mm")),
    Sketcher.Constraint("DistanceX", -1, 1, 0, 2, Q("0.375 mm")),
    Sketcher.Constraint("DistanceY", -1, 1, 0, 2, Q("9.785 mm")),
])
pad7 = body.newObject("PartDesign::Pad", "Pad006")
pad7.Profile = sketch23
pad7.Length = 6.2
pad7.Reversed = True

# Sketch on XZ plane
sketch24 = body.newObject("Sketcher::SketchObject", "Sketch023")
sketch24.AttachmentSupport = (doc.getObject("XZ_Plane"), [""])
sketch24.MapMode = "FlatFace"
sketch24.AttachmentOffset = App.Placement(Vector(0, 0, -2.3), App.Rotation())
add_polygon(sketch24, [(0.375, 13.075), (0.375, 12.325), (-0.375, 12.325), (-0.375, 13.075)])  # lines 0-3
sketch24.addConstraint([
    Sketcher.Constraint("Vertical", 0),
    Sketcher.Constraint("Horizontal", 1),
    Sketcher.Constraint("Vertical", 2),
    Sketcher.Constraint("Horizontal", 3),
    Sketcher.Constraint("Equal", 3, 0),
    Sketcher.Constraint("DistanceX", 1, 2, 1, 1, Q("0.75 mm")),
    Sketcher.Constraint("DistanceX", -1, 1, 0, 2, Q("0.375 mm")),
    Sketcher.Constraint("DistanceY", -1, 1, 0, 2, Q("12.325 mm")),
])
pad8 = body.newObject("PartDesign::Pad", "Pad007")
pad8.Profile = sketch24
pad8.Length = 6.2
pad8.Reversed = True

# Sketch on XZ plane
sketch25 = body.newObject("Sketcher::SketchObject", "Sketch024")
sketch25.AttachmentSupport = (doc.getObject("XZ_Plane"), [""])
sketch25.MapMode = "FlatFace"
sketch25.AttachmentOffset = App.Placement(Vector(0, 0, -2.3), App.Rotation())
add_polygon(sketch25, [(0.375, 15.615), (0.375, 14.865), (-0.375, 14.865), (-0.375, 15.615)])  # lines 0-3
sketch25.addConstraint([
    Sketcher.Constraint("Vertical", 0),
    Sketcher.Constraint("Horizontal", 1),
    Sketcher.Constraint("Vertical", 2),
    Sketcher.Constraint("Horizontal", 3),
    Sketcher.Constraint("Equal", 3, 0),
    Sketcher.Constraint("DistanceX", 1, 2, 1, 1, Q("0.75 mm")),
    Sketcher.Constraint("DistanceX", -1, 1, 0, 2, Q("0.375 mm")),
    Sketcher.Constraint("DistanceY", -1, 1, 0, 2, Q("14.865 mm")),
])
pad9 = body.newObject("PartDesign::Pad", "Pad008")
pad9.Profile = sketch25
pad9.Length = 6.2
pad9.Reversed = True

# Sketch on XZ plane
sketch26 = body.newObject("Sketcher::SketchObject", "Sketch025")
sketch26.AttachmentSupport = (doc.getObject("XZ_Plane"), [""])
sketch26.MapMode = "FlatFace"
sketch26.AttachmentOffset = App.Placement(Vector(0, 0, -2.3), App.Rotation())
add_polygon(sketch26, [(0.375, 18.155), (0.375, 17.405), (-0.375, 17.405), (-0.375, 18.155)])  # lines 0-3
sketch26.addConstraint([
    Sketcher.Constraint("Vertical", 0),
    Sketcher.Constraint("Horizontal", 1),
    Sketcher.Constraint("Vertical", 2),
    Sketcher.Constraint("Horizontal", 3),
    Sketcher.Constraint("Equal", 3, 0),
    Sketcher.Constraint("DistanceX", 1, 2, 1, 1, Q("0.75 mm")),
    Sketcher.Constraint("DistanceX", -1, 1, 0, 2, Q("0.375 mm")),
    Sketcher.Constraint("DistanceY", -1, 1, 0, 2, Q("17.405 mm")),
])
pad10 = body.newObject("PartDesign::Pad", "Pad009")
pad10.Profile = sketch26
pad10.Length = 6.2
pad10.Reversed = True

# Sketch on XZ plane
sketch27 = body.newObject("Sketcher::SketchObject", "Sketch026")
sketch27.AttachmentSupport = (doc.getObject("XZ_Plane"), [""])
sketch27.MapMode = "FlatFace"
add_polygon(sketch27, [(-0.375, 2.915), (-0.375, 2.165), (0.375, 2.165), (0.375, 2.915)])  # lines 0-3
sketch27.addConstraint([
    Sketcher.Constraint("Vertical", 0),
    Sketcher.Constraint("Horizontal", 1),
    Sketcher.Constraint("Vertical", 2),
    Sketcher.Constraint("Horizontal", 3),
    Sketcher.Constraint("Equal", 3, 0),
    Sketcher.Constraint("DistanceX", 1, 1, 1, 2, Q("0.75 mm")),
    Sketcher.Constraint("DistanceX", 0, 2, -1, 1, Q("0.375 mm")),
    Sketcher.Constraint("DistanceY", -1, 1, 0, 2, Q("2.165 mm")),
])
pad11 = body.newObject("PartDesign::Pad", "Pad010")
pad11.Profile = sketch27
pad11.Length = 3.25

# Sketch on XZ plane
sketch28 = body.newObject("Sketcher::SketchObject", "Sketch027")
sketch28.AttachmentSupport = (doc.getObject("XZ_Plane"), [""])
sketch28.MapMode = "FlatFace"
add_polygon(sketch28, [(-0.375, 5.455), (-0.375, 4.705), (0.375, 4.705), (0.375, 5.455)])  # lines 0-3
sketch28.addConstraint([
    Sketcher.Constraint("Vertical", 0),
    Sketcher.Constraint("Horizontal", 1),
    Sketcher.Constraint("Vertical", 2),
    Sketcher.Constraint("Horizontal", 3),
    Sketcher.Constraint("Equal", 3, 0),
    Sketcher.Constraint("DistanceX", 1, 1, 1, 2, Q("0.75 mm")),
    Sketcher.Constraint("DistanceX", 0, 2, -1, 1, Q("0.375 mm")),
    Sketcher.Constraint("DistanceY", -1, 1, 0, 2, Q("4.705 mm")),
])
pad12 = body.newObject("PartDesign::Pad", "Pad011")
pad12.Profile = sketch28
pad12.Length = 3.25

# Sketch on XZ plane
sketch29 = body.newObject("Sketcher::SketchObject", "Sketch028")
sketch29.AttachmentSupport = (doc.getObject("XZ_Plane"), [""])
sketch29.MapMode = "FlatFace"
add_polygon(sketch29, [(-0.375, 7.995), (-0.375, 7.245), (0.375, 7.245), (0.375, 7.995)])  # lines 0-3
sketch29.addConstraint([
    Sketcher.Constraint("Vertical", 0),
    Sketcher.Constraint("Horizontal", 1),
    Sketcher.Constraint("Vertical", 2),
    Sketcher.Constraint("Horizontal", 3),
    Sketcher.Constraint("Equal", 3, 0),
    Sketcher.Constraint("DistanceX", 1, 1, 1, 2, Q("0.75 mm")),
    Sketcher.Constraint("DistanceX", 0, 2, -1, 1, Q("0.375 mm")),
    Sketcher.Constraint("DistanceY", -1, 1, 0, 2, Q("7.245 mm")),
])
pad13 = body.newObject("PartDesign::Pad", "Pad012")
pad13.Profile = sketch29
pad13.Length = 3.25

# Sketch on XZ plane
sketch30 = body.newObject("Sketcher::SketchObject", "Sketch029")
sketch30.AttachmentSupport = (doc.getObject("XZ_Plane"), [""])
sketch30.MapMode = "FlatFace"
add_polygon(sketch30, [(-0.375, 10.535), (-0.375, 9.785), (0.375, 9.785), (0.375, 10.535)])  # lines 0-3
sketch30.addConstraint([
    Sketcher.Constraint("Vertical", 0),
    Sketcher.Constraint("Horizontal", 1),
    Sketcher.Constraint("Vertical", 2),
    Sketcher.Constraint("Horizontal", 3),
    Sketcher.Constraint("Equal", 3, 0),
    Sketcher.Constraint("DistanceX", 1, 1, 1, 2, Q("0.75 mm")),
    Sketcher.Constraint("DistanceX", 0, 2, -1, 1, Q("0.375 mm")),
    Sketcher.Constraint("DistanceY", -1, 1, 0, 2, Q("9.785 mm")),
])
pad14 = body.newObject("PartDesign::Pad", "Pad013")
pad14.Profile = sketch30
pad14.Length = 3.25

# Sketch on XZ plane
sketch31 = body.newObject("Sketcher::SketchObject", "Sketch030")
sketch31.AttachmentSupport = (doc.getObject("XZ_Plane"), [""])
sketch31.MapMode = "FlatFace"
add_polygon(sketch31, [(-0.375, 13.075), (-0.375, 12.325), (0.375, 12.325), (0.375, 13.075)])  # lines 0-3
sketch31.addConstraint([
    Sketcher.Constraint("Vertical", 0),
    Sketcher.Constraint("Horizontal", 1),
    Sketcher.Constraint("Vertical", 2),
    Sketcher.Constraint("Horizontal", 3),
    Sketcher.Constraint("Equal", 3, 0),
    Sketcher.Constraint("DistanceX", 1, 1, 1, 2, Q("0.75 mm")),
    Sketcher.Constraint("DistanceX", 0, 2, -1, 1, Q("0.375 mm")),
    Sketcher.Constraint("DistanceY", -1, 1, 0, 2, Q("12.325 mm")),
])
pad15 = body.newObject("PartDesign::Pad", "Pad014")
pad15.Profile = sketch31
pad15.Length = 3.25

# Sketch on XZ plane
sketch32 = body.newObject("Sketcher::SketchObject", "Sketch031")
sketch32.AttachmentSupport = (doc.getObject("XZ_Plane"), [""])
sketch32.MapMode = "FlatFace"
add_polygon(sketch32, [(-0.375, 15.615), (-0.375, 14.865), (0.375, 14.865), (0.375, 15.615)])  # lines 0-3
sketch32.addConstraint([
    Sketcher.Constraint("Vertical", 0),
    Sketcher.Constraint("Horizontal", 1),
    Sketcher.Constraint("Vertical", 2),
    Sketcher.Constraint("Horizontal", 3),
    Sketcher.Constraint("Equal", 3, 0),
    Sketcher.Constraint("DistanceX", 1, 1, 1, 2, Q("0.75 mm")),
    Sketcher.Constraint("DistanceX", 0, 2, -1, 1, Q("0.375 mm")),
    Sketcher.Constraint("DistanceY", -1, 1, 0, 2, Q("14.865 mm")),
])
pad16 = body.newObject("PartDesign::Pad", "Pad015")
pad16.Profile = sketch32
pad16.Length = 3.25

# Sketch on XZ plane
sketch33 = body.newObject("Sketcher::SketchObject", "Sketch032")
sketch33.AttachmentSupport = (doc.getObject("XZ_Plane"), [""])
sketch33.MapMode = "FlatFace"
add_polygon(sketch33, [(-0.375, 18.155), (-0.375, 17.405), (0.375, 17.405), (0.375, 18.155)])  # lines 0-3
sketch33.addConstraint([
    Sketcher.Constraint("Vertical", 0),
    Sketcher.Constraint("Horizontal", 1),
    Sketcher.Constraint("Vertical", 2),
    Sketcher.Constraint("Horizontal", 3),
    Sketcher.Constraint("Equal", 3, 0),
    Sketcher.Constraint("DistanceX", 1, 1, 1, 2, Q("0.75 mm")),
    Sketcher.Constraint("DistanceX", 0, 2, -1, 1, Q("0.375 mm")),
    Sketcher.Constraint("DistanceY", -1, 1, 0, 2, Q("17.405 mm")),
])
pad17 = body.newObject("PartDesign::Pad", "Pad016")
pad17.Profile = sketch33
pad17.Length = 3.25
doc.recompute()

fillet = body.newObject("PartDesign::Fillet", "Fillet")
fillet.Base = (pad17, edges_at(pad17, [(-1.27, 1.15, -1.27), (1.27, 1.15, -1.27)]))
fillet.Radius = 0.5

doc.recompute()
